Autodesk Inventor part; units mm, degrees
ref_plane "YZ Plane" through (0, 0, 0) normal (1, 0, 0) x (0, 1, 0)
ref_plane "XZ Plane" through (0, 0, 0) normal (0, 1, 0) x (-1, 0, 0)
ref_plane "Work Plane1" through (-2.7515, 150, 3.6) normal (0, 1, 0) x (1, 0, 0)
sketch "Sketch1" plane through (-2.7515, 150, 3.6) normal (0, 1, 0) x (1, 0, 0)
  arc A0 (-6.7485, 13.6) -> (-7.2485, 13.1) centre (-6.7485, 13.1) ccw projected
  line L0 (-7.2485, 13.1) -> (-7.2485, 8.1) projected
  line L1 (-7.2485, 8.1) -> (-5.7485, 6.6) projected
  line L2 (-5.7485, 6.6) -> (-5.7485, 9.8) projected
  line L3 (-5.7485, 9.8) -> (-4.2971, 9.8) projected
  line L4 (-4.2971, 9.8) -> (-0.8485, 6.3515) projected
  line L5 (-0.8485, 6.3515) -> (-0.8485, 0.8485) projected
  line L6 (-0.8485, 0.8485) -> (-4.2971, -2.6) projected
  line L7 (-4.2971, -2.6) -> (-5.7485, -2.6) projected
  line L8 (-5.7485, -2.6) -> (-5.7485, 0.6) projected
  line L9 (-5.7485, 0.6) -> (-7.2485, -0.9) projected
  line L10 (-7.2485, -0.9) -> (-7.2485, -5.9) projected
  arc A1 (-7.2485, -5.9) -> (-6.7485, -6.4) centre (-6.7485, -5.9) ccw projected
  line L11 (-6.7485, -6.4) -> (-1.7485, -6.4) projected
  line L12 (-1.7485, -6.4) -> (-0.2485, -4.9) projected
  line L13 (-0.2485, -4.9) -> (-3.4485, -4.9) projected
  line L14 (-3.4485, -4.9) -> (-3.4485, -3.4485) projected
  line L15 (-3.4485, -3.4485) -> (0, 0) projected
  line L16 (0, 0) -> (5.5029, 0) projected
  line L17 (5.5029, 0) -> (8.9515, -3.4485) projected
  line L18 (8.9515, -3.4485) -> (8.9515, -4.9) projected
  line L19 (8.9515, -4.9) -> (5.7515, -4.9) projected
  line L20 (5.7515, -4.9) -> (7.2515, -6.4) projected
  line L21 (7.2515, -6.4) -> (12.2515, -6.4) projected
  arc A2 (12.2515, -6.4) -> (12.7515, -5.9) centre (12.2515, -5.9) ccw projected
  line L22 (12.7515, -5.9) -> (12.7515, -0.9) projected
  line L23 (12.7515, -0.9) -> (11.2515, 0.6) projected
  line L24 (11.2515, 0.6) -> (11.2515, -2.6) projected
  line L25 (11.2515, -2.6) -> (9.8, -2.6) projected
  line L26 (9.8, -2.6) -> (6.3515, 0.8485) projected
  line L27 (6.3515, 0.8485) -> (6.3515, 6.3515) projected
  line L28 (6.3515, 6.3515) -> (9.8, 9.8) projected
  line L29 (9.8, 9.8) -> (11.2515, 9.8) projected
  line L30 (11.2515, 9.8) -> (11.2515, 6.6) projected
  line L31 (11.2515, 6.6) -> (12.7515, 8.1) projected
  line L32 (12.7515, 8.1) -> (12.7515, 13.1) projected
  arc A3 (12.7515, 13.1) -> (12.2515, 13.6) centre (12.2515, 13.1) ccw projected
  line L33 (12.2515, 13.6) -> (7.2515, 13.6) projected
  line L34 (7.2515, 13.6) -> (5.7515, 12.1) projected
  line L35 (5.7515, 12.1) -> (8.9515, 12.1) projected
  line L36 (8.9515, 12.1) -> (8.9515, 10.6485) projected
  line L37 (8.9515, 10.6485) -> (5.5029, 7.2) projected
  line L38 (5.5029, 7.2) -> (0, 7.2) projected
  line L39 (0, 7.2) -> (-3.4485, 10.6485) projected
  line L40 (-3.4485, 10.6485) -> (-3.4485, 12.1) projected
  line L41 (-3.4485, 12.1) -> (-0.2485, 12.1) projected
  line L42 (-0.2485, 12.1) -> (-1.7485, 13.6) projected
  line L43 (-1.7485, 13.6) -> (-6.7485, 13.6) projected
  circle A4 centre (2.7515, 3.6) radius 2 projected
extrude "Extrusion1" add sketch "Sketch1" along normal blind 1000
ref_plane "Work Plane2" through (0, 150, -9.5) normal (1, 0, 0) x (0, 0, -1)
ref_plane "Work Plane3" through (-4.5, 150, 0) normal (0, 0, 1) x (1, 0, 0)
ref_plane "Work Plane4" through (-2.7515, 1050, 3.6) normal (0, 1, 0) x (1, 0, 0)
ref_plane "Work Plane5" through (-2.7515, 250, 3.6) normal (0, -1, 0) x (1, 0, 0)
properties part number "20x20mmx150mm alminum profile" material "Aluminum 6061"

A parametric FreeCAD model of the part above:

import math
import FreeCAD as App
import Part
import Sketcher
Q = App.Units.Quantity

doc = App.newDocument("Part")
body = doc.addObject("PartDesign::Body", "Body")

# Sketch on XZ plane
sketch1 = body.newObject("Sketcher::SketchObject", "Sketch")
sketch1.AttachmentSupport = (doc.getObject("XZ_Plane"), [""])
sketch1.MapMode = "FlatFace"
sketch1.AttachmentOffset = App.Placement(App.Vector(0, 0, -150), App.Rotation())
sketch1.addGeometry(Part.LineSegment(App.Vector(-4.5, -10, 0), App.Vector(-9.5, -10, 0)), False)
sketch1.addGeometry(Part.ArcOfCircle(Part.Circle(App.Vector(-9.5, -9.5, 0), App.Vector(0, 0, 1), 0.5), math.radians(180), math.radians(270)), False)
sketch1.addGeometry(Part.LineSegment(App.Vector(-10, -9.5, 0), App.Vector(-10, -4.5, 0)), False)
sketch1.addGeometry(Part.LineSegment(App.Vector(-10, -4.5, 0), App.Vector(-8.5, -3, 0)), False)
sketch1.addGeometry(Part.LineSegment(App.Vector(-8.5, -3, 0), App.Vector(-8.5, -6.2, 0)), False)
sketch1.addGeometry(Part.LineSegment(App.Vector(-8.5, -6.2, 0), App.Vector(-7.0486, -6.2, 0)), False)
sketch1.addGeometry(Part.LineSegment(App.Vector(-7.0486, -6.2, 0), App.Vector(-3.6, -2.7515, 0)), False)
sketch1.addGeometry(Part.LineSegment(App.Vector(-3.6, -2.7515, 0), App.Vector(-3.6, 2.7515, 0)), False)
sketch1.addGeometry(Part.LineSegment(App.Vector(-3.6, 2.7515, 0), App.Vector(-7.0486, 6.2, 0)), False)
sketch1.addGeometry(Part.LineSegment(App.Vector(-7.0486, 6.2, 0), App.Vector(-8.5, 6.2, 0)), False)
sketch1.addGeometry(Part.LineSegment(App.Vector(-8.5, 6.2, 0), App.Vector(-8.5, 3, 0)), False)
sketch1.addGeometry(Part.LineSegment(App.Vector(-8.5, 3, 0), App.Vector(-10, 4.5, 0)), False)
sketch1.addGeometry(Part.LineSegment(App.Vector(-10, 4.5, 0), App.Vector(-10, 9.5, 0)), False)
sketch1.addGeometry(Part.ArcOfCircle(Part.Circle(App.Vector(-9.5, 9.5, 0), App.Vector(0, 0, 1), 0.5), math.radians(90), math.radians(180)), False)
sketch1.addGeometry(Part.LineSegment(App.Vector(-9.5, 10, 0), App.Vector(-4.5, 10, 0)), False)
sketch1.addGeometry(Part.LineSegment(App.Vector(-4.5, 10, 0), App.Vector(-3, 8.5, 0)), False)
sketch1.addGeometry(Part.LineSegment(App.Vector(-3, 8.5, 0), App.Vector(-6.2, 8.5, 0)), False)
sketch1.addGeometry(Part.LineSegment(App.Vector(-6.2, 8.5, 0), App.Vector(-6.2, 7.0485, 0)), False)
sketch1.addGeometry(Part.LineSegment(App.Vector(-6.2, 7.0485, 0), App.Vector(-2.7515, 3.6, 0)), False)
sketch1.addGeometry(Part.LineSegment(App.Vector(-2.7515, 3.6, 0), App.Vector(2.7514, 3.6, 0)), False)
sketch1.addGeometry(Part.LineSegment(App.Vector(2.7514, 3.6, 0), App.Vector(6.2, 7.0485, 0)), False)
sketch1.addGeometry(Part.LineSegment(App.Vector(6.2, 7.0485, 0), App.Vector(6.2, 8.5, 0)), False)
sketch1.addGeometry(Part.LineSegment(App.Vector(6.2, 8.5, 0), App.Vector(3, 8.5, 0)), False)
sketch1.addGeometry(Part.LineSegment(App.Vector(3, 8.5, 0), App.Vector(4.5, 10, 0)), False)
sketch1.addGeometry(Part.LineSegment(App.Vector(4.5, 10, 0), App.Vector(9.5, 10, 0)), False)
sketch1.addGeometry(Part.ArcOfCircle(Part.Circle(App.Vector(9.5, 9.5, 0), App.Vector(0, 0, 1), 0.5), math.radians(0), math.radians(90)), False)
sketch1.addGeometry(Part.LineSegment(App.Vector(10, 9.5, 0), App.Vector(10, 4.5, 0)), False)
sketch1.addGeometry(Part.LineSegment(App.Vector(10, 4.5, 0), App.Vector(8.5, 3, 0)), False)
sketch1.addGeometry(Part.LineSegment(App.Vector(8.5, 3, 0), App.Vector(8.5, 6.2, 0)), False)
sketch1.addGeometry(Part.LineSegment(App.Vector(8.5, 6.2, 0), App.Vector(7.0485, 6.2, 0)), False)
sketch1.addGeometry(Part.LineSegment(App.Vector(7.0485, 6.2, 0), App.Vector(3.6, 2.7515, 0)), False)
sketch1.addGeometry(Part.LineSegment(App.Vector(3.6, 2.7515, 0), App.Vector(3.6, -2.7515, 0)), False)
sketch1.addGeometry(Part.LineSegment(App.Vector(3.6, -2.7515, 0), App.Vector(7.0485, -6.2, 0)), False)
sketch1.addGeometry(Part.LineSegment(App.Vector(7.0485, -6.2, 0), App.Vector(8.5, -6.2, 0)), False)
sketch1.addGeometry(Part.LineSegment(App.Vector(8.5, -6.2, 0), App.Vector(8.5, -3, 0)), False)
sketch1.addGeometry(Part.LineSegment(App.Vector(8.5, -3, 0), App.Vector(10, -4.5, 0)), False)
sketch1.addGeometry(Part.LineSegment(App.Vector(10, -4.5, 0), App.Vector(10, -9.5, 0)), False)
sketch1.addGeometry(Part.ArcOfCircle(Part.Circle(App.Vector(9.5, -9.5, 0), App.Vector(0, 0, 1), 0.5), math.radians(-90), math.radians(0)), False)
sketch1.addGeometry(Part.LineSegment(App.Vector(9.5, -10, 0), App.Vector(4.5, -10, 0)), False)
sketch1.addGeometry(Part.LineSegment(App.Vector(4.5, -10, 0), App.Vector(3, -8.5, 0)), False)
sketch1.addGeometry(Part.LineSegment(App.Vector(3, -8.5, 0), App.Vector(6.2, -8.5, 0)), False)
sketch1.addGeometry(Part.LineSegment(App.Vector(6.2, -8.5, 0), App.Vector(6.2, -7.0485, 0)), False)
sketch1.addGeometry(Part.LineSegment(App.Vector(6.2, -7.0485, 0), App.Vector(2.7514, -3.6, 0)), False)
sketch1.addGeometry(Part.LineSegment(App.Vector(2.7514, -3.6, 0), App.Vector(-2.7515, -3.6, 0)), False)
sketch1.addGeometry(Part.LineSegment(App.Vector(-2.7515, -3.6, 0), App.Vector(-6.2, -7.0485, 0)), False)
sketch1.addGeometry(Part.LineSegment(App.Vector(-6.2, -7.0485, 0), App.Vector(-6.2, -8.5, 0)), False)
sketch1.addGeometry(Part.LineSegment(App.Vector(-6.2, -8.5, 0), App.Vector(-3, -8.5, 0)), False)
sketch1.addGeometry(Part.LineSegment(App.Vector(-3, -8.5, 0), App.Vector(-4.5, -10, 0)), False)
sketch1.addGeometry(Part.Circle(App.Vector(0, 0, 0), App.Vector(0, 0, 1), 2), False)
sketch1.addConstraint(Sketcher.Constraint("Tangent", 0, 2, 1, 2))
sketch1.addConstraint(Sketcher.Constraint("Tangent", 1, 1, 2, 1))
sketch1.addConstraint(Sketcher.Constraint("Coincident", 2, 2, 3, 1))
sketch1.addConstraint(Sketcher.Constraint("Coincident", 3, 2, 4, 1))
sketch1.addConstraint(Sketcher.Constraint("Coincident", 4, 2, 5, 1))
sketch1.addConstraint(Sketcher.Constraint("Coincident", 5, 2, 6, 1))
sketch1.addConstraint(Sketcher.Constraint("Coincident", 6, 2, 7, 1))
sketch1.addConstraint(Sketcher.Constraint("Coincident", 7, 2, 8, 1))
sketch1.addConstraint(Sketcher.Constraint("Coincident", 8, 2, 9, 1))
sketch1.addConstraint(Sketcher.Constraint("Coincident", 9, 2, 10, 1))
sketch1.addConstraint(Sketcher.Constraint("Coincident", 10, 2, 11, 1))
sketch1.addConstraint(Sketcher.Constraint("Coincident", 11, 2, 12, 1))
sketch1.addConstraint(Sketcher.Constraint("Tangent", 12, 2, 13, 2))
sketch1.addConstraint(Sketcher.Constraint("Tangent", 13, 1, 14, 1))
sketch1.addConstraint(Sketcher.Constraint("Coincident", 14, 2, 15, 1))
sketch1.addConstraint(Sketcher.Constraint("Coincident", 15, 2, 16, 1))
sketch1.addConstraint(Sketcher.Constraint("Coincident", 16, 2, 17, 1))
sketch1.addConstraint(Sketcher.Constraint("Coincident", 17, 2, 18, 1))
sketch1.addConstraint(Sketcher.Constraint("Coincident", 18, 2, 19, 1))
sketch1.addConstraint(Sketcher.Constraint("Coincident", 19, 2, 20, 1))
sketch1.addConstraint(Sketcher.Constraint("Coincident", 20, 2, 21, 1))
sketch1.addConstraint(Sketcher.Constraint("Coincident", 21, 2, 22, 1))
sketch1.addConstraint(Sketcher.Constraint("Coincident", 22, 2, 23, 1))
sketch1.addConstraint(Sketcher.Constraint("Coincident", 23, 2, 24, 1))
sketch1.addConstraint(Sketcher.Constraint("Tangent", 24, 2, 25, 2))
sketch1.addConstraint(Sketcher.Constraint("Tangent", 25, 1, 26, 1))
sketch1.addConstraint(Sketcher.Constraint("Coincident", 26, 2, 27, 1))
sketch1.addConstraint(Sketcher.Constraint("Coincident", 27, 2, 28, 1))
sketch1.addConstraint(Sketcher.Constraint("Coincident", 28, 2, 29, 1))
sketch1.addConstraint(Sketcher.Constraint("Coincident", 29, 2, 30, 1))
sketch1.addConstraint(Sketcher.Constraint("Coincident", 30, 2, 31, 1))
sketch1.addConstraint(Sketcher.Constraint("Coincident", 31, 2, 32, 1))
sketch1.addConstraint(Sketcher.Constraint("Coincident", 32, 2, 33, 1))
sketch1.addConstraint(Sketcher.Constraint("Coincident", 33, 2, 34, 1))
sketch1.addConstraint(Sketcher.Constraint("Coincident", 34, 2, 35, 1))
sketch1.addConstraint(Sketcher.Constraint("Coincident", 35, 2, 36, 1))
sketch1.addConstraint(Sketcher.Constraint("Tangent", 36, 2, 37, 2))
sketch1.addConstraint(Sketcher.Constraint("Tangent", 37, 1, 38, 1))
sketch1.addConstraint(Sketcher.Constraint("Coincident", 38, 2, 39, 1))
sketch1.addConstraint(Sketcher.Constraint("Coincident", 39, 2, 40, 1))
sketch1.addConstraint(Sketcher.Constraint("Coincident", 40, 2, 41, 1))
sketch1.addConstraint(Sketcher.Constraint("Coincident", 41, 2, 42, 1))
sketch1.addConstraint(Sketcher.Constraint("Coincident", 42, 2, 43, 1))
sketch1.addConstraint(Sketcher.Constraint("Coincident", 43, 2, 44, 1))
sketch1.addConstraint(Sketcher.Constraint("Coincident", 44, 2, 45, 1))
sketch1.addConstraint(Sketcher.Constraint("Coincident", 45, 2, 46, 1))
sketch1.addConstraint(Sketcher.Constraint("Coincident", 46, 2, 47, 1))
sketch1.addConstraint(Sketcher.Constraint("Coincident", 47, 2, 0, 1))
sketch1.addConstraint(Sketcher.Constraint("Horizontal", 0))
sketch1.addConstraint(Sketcher.Constraint("Vertical", 2))
sketch1.addConstraint(Sketcher.Constraint("Vertical", 4))
sketch1.addConstraint(Sketcher.Constraint("Horizontal", 5))
sketch1.addConstraint(Sketcher.Constraint("Vertical", 7))
sketch1.addConstraint(Sketcher.Constraint("Horizontal", 9))
sketch1.addConstraint(Sketcher.Constraint("Vertical", 10))
sketch1.addConstraint(Sketcher.Constraint("Vertical", 12))
sketch1.addConstraint(Sketcher.Constraint("Horizontal", 14))
sketch1.addConstraint(Sketcher.Constraint("Horizontal", 16))
sketch1.addConstraint(Sketcher.Constraint("Vertical", 17))
sketch1.addConstraint(Sketcher.Constraint("Horizontal", 19))
sketch1.addConstraint(Sketcher.Constraint("Vertical", 21))
sketch1.addConstraint(Sketcher.Constraint("Horizontal", 22))
sketch1.addConstraint(Sketcher.Constraint("Horizontal", 24))
sketch1.addConstraint(Sketcher.Constraint("Vertical", 26))
sketch1.addConstraint(Sketcher.Constraint("Vertical", 28))
sketch1.addConstraint(Sketcher.Constraint("Horizontal", 29))
sketch1.addConstraint(Sketcher.Constraint("Vertical", 31))
sketch1.addConstraint(Sketcher.Constraint("Horizontal", 33))
sketch1.addConstraint(Sketcher.Constraint("Vertical", 34))
sketch1.addConstraint(Sketcher.Constraint("Vertical", 36))
sketch1.addConstraint(Sketcher.Constraint("Horizontal", 38))
sketch1.addConstraint(Sketcher.Constraint("Horizontal", 40))
sketch1.addConstraint(Sketcher.Constraint("Vertical", 41))
sketch1.addConstraint(Sketcher.Constraint("Horizontal", 43))
sketch1.addConstraint(Sketcher.Constraint("Vertical", 45))
sketch1.addConstraint(Sketcher.Constraint("Horizontal", 46))
sketch1.addConstraint(Sketcher.Constraint("Coincident", 48, 3, -1, 1))
sketch1.addConstraint(Sketcher.Constraint("Equal", 1, 13))
sketch1.addConstraint(Sketcher.Constraint("Equal", 13, 25))
sketch1.addConstraint(Sketcher.Constraint("Equal", 25, 37))
sketch1.addConstraint(Sketcher.Constraint("Symmetric", 1, 3, 25, 3, -1, 1))
sketch1.addConstraint(Sketcher.Constraint("Symmetric", 13, 3, 37, 3, -1, 1))
sketch1.addConstraint(Sketcher.Constraint("Symmetric", 3, 2, 27, 2, -1, 1))
sketch1.addConstraint(Sketcher.Constraint("Symmetric", 5, 2, 29, 2, -1, 1))
sketch1.addConstraint(Sketcher.Constraint("Symmetric", 6, 2, 30, 2, -1, 1))
sketch1.addConstraint(Sketcher.Constraint("Symmetric", 8, 2, 32, 2, -1, 1))
sketch1.addConstraint(Sketcher.Constraint("Symmetric", 10, 2, 34, 2, -1, 1))
sketch1.addConstraint(Sketcher.Constraint("Symmetric", 15, 2, 39, 2, -1, 1))
sketch1.addConstraint(Sketcher.Constraint("Symmetric", 17, 2, 41, 2, -1, 1))
sketch1.addConstraint(Sketcher.Constraint("Symmetric", 18, 2, 42, 2, -1, 1))
sketch1.addConstraint(Sketcher.Constraint("Symmetric", 20, 2, 44, 2, -1, 1))
sketch1.addConstraint(Sketcher.Constraint("Symmetric", 22, 2, 46, 2, -1, 1))
sketch1.addConstraint(Sketcher.Constraint("Symmetric", 13, 3, 25, 3, -2))
sketch1.addConstraint(Sketcher.Constraint("Symmetric", 17, 2, 20, 2, -2))
sketch1.addConstraint(Sketcher.Constraint("Symmetric", 15, 2, 22, 2, -2))
sketch1.addConstraint(Sketcher.Constraint("Symmetric", 10, 2, 27, 2, -2))
sketch1.addConstraint(Sketcher.Constraint("Symmetric", 8, 2, 29, 2, -2))
sketch1.addConstraint(Sketcher.Constraint("Parallel", 3, 6))
sketch1.addConstraint(Sketcher.Constraint("Perpendicular", 6, 8))
sketch1.addConstraint(Sketcher.Constraint("Parallel", 8, 11))
sketch1.addConstraint(Sketcher.Constraint("Parallel", 11, 15))
sketch1.addConstraint(Sketcher.Constraint("Parallel", 15, 18))
sketch1.addConstraint(Sketcher.Constraint("Perpendicular", 18, 20))
sketch1.addConstraint(Sketcher.Constraint("Parallel", 20, 23))
sketch1.addConstraint(Sketcher.Constraint("Parallel", 23, 27))
sketch1.addConstraint(Sketcher.Constraint("Perpendicular", 30, 32))
sketch1.addConstraint(Sketcher.Constraint("Parallel", 32, 35))
sketch1.addConstraint(Sketcher.Constraint("Parallel", 35, 39))
sketch1.addConstraint(Sketcher.Constraint("Perpendicular", 42, 44))
sketch1.addConstraint(Sketcher.Constraint("Parallel", 44, 47))
sketch1.addConstraint(Sketcher.Constraint("Horizontal", 11, 2, 26, 2))
sketch1.addConstraint(Sketcher.Constraint("Equal", 38, 2))
sketch1.addConstraint(Sketcher.Constraint("Equal", 46, 4))
sketch1.addConstraint(Sketcher.Constraint("Equal", 43, 7))
sketch1.addConstraint(Sketcher.Constraint("Equal", 33, 17))
sketch1.addConstraint(Sketcher.Constraint("Equal", 11, 15))
sketch1.addConstraint(Sketcher.Constraint("Equal", 8, 18))
sketch1.addConstraint(Sketcher.Constraint("Diameter", 48, Q("4 mm")))
sketch1.addConstraint(Sketcher.Constraint("Radius", 1, Q("0.5 mm")))
sketch1.addConstraint(Sketcher.Constraint("DistanceX", 0, 2, 0, 1, Q("5 mm")))
sketch1.addConstraint(Sketcher.Constraint("DistanceX", 16, 2, 16, 1, Q("3.2 mm")))
sketch1.addConstraint(Sketcher.Constraint("DistanceY", 0, 2, -1, 1, Q("10 mm")))
sketch1.addConstraint(Sketcher.Constraint("DistanceY", 3, 2, -1, 1, Q("3 mm")))
sketch1.addConstraint(Sketcher.Constraint("DistanceX", 6, 2, -1, 1, Q("3.6 mm")))
sketch1.addConstraint(Sketcher.Constraint("DistanceX", 19, 1, 19, 2, Q("5.503 mm")))
pad1 = body.newObject("PartDesign::Pad", "Pad")
pad1.Profile = sketch1
pad1.Length = 1000
pad1.Reversed = True

doc.recompute()
